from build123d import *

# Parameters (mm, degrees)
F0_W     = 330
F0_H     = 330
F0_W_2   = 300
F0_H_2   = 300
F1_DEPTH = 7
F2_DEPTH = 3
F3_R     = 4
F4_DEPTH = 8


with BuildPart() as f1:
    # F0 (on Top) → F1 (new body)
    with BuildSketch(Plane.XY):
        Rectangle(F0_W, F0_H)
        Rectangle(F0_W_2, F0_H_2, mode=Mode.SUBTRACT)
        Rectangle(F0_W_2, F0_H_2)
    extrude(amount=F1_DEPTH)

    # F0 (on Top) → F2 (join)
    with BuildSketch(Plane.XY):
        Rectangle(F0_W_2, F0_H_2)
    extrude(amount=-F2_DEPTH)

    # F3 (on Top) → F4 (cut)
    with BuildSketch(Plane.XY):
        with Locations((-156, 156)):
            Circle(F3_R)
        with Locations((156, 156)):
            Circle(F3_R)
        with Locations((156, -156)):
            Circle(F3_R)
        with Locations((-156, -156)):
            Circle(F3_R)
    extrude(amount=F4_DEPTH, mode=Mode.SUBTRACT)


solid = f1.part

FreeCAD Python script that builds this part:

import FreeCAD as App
import Part
import Sketcher

V = App.Vector
Q = App.Units.Quantity

doc = App.newDocument("Part")
body = doc.addObject("PartDesign::Body", "Body")

sketch1 = doc.addObject("Sketcher::SketchObject", "Sketch")
body.addObject(sketch1)
sketch1.AttachmentSupport = (doc.XY_Plane, [""])
sketch1.MapMode = "FlatFace"
sketch1.addGeometry([
    Part.LineSegment(V(-165, 165, 0), V(-165, -165, 0)),
    Part.LineSegment(V(-165, -165, 0), V(165, -165, 0)),
    Part.LineSegment(V(165, -165, 0), V(165, 165, 0)),
    Part.LineSegment(V(165, 165, 0), V(-165, 165, 0)),
], False)
sketch1.addConstraint([
    Sketcher.Constraint("Coincident", 0, 2, 1, 1),
    Sketcher.Constraint("Coincident", 1, 2, 2, 1),
    Sketcher.Constraint("Coincident", 2, 2, 3, 1),
    Sketcher.Constraint("Coincident", 3, 2, 0, 1),
    Sketcher.Constraint("Vertical", 0),
    Sketcher.Constraint("Horizontal", 1),
    Sketcher.Constraint("Vertical", 2),
    Sketcher.Constraint("Horizontal", 3),
    Sketcher.Constraint("Symmetric", 0, 2, 2, 2, -1, 1),
    Sketcher.Constraint("Equal", 3, 0),
    Sketcher.Constraint("DistanceX", 1, 1, 1, 2, Q("330 mm")),
])
pad1 = doc.addObject("PartDesign::Pad", "Pad")
body.addObject(pad1)
pad1.Profile = sketch1
pad1.Length = 7

sketch2 = doc.addObject("Sketcher::SketchObject", "Sketch001")
body.addObject(sketch2)
sketch2.AttachmentSupport = (doc.XY_Plane, [""])
sketch2.MapMode = "FlatFace"
sketch2.addGeometry([
    Part.LineSegment(V(-150, 150, 0), V(-150, -150, 0)),
    Part.LineSegment(V(-150, -150, 0), V(150, -150, 0)),
    Part.LineSegment(V(150, -150, 0), V(150, 150, 0)),
    Part.LineSegment(V(150, 150, 0), V(-150, 150, 0)),
], False)
sketch2.addConstraint([
    Sketcher.Constraint("Coincident", 0, 2, 1, 1),
    Sketcher.Constraint("Coincident", 1, 2, 2, 1),
    Sketcher.Constraint("Coincident", 2, 2, 3, 1),
    Sketcher.Constraint("Coincident", 3, 2, 0, 1),
    Sketcher.Constraint("Vertical", 0),
    Sketcher.Constraint("Horizontal", 1),
    Sketcher.Constraint("Vertical", 2),
    Sketcher.Constraint("Horizontal", 3),
    Sketcher.Constraint("Symmetric", 0, 2, 2, 2, -1, 1),
    Sketcher.Constraint("Equal", 3, 0),
    Sketcher.Constraint("DistanceX", 1, 1, 1, 2, Q("300 mm")),
])
pad2 = doc.addObject("PartDesign::Pad", "Pad001")
body.addObject(pad2)
pad2.Profile = sketch2
pad2.Length = 3
pad2.Reversed = True

sketch3 = doc.addObject("Sketcher::SketchObject", "Sketch002")
body.addObject(sketch3)
sketch3.AttachmentSupport = (doc.XY_Plane, [""])
sketch3.MapMode = "FlatFace"
sketch3.addGeometry([
    Part.Circle(V(-156, 156, 0), V(0, 0, 1), 4),
    Part.Circle(V(156, 156, 0), V(0, 0, 1), 4),
    Part.Circle(V(156, -156, 0), V(0, 0, 1), 4),
    Part.Circle(V(-156, -156, 0), V(0, 0, 1), 4),
], False)
sketch3.addConstraint([
    Sketcher.Constraint("Equal", 0, 1),
    Sketcher.Constraint("Equal", 1, 2),
    Sketcher.Constraint("Equal", 2, 3),
    Sketcher.Constraint("Symmetric", 0, 3, 2, 3, -1, 1),
    Sketcher.Constraint("Symmetric", 1, 3, 3, 3, -1, 1),
    Sketcher.Constraint("Symmetric", 0, 3, 1, 3, -2),
    Sketcher.Constraint("Diameter", 0, Q("8 mm")),
    Sketcher.Constraint("DistanceX", 0, 3, -1, 1, Q("156 mm")),
    Sketcher.Constraint("DistanceY", -1, 1, 0, 3, Q("156 mm")),
])
pocket1 = doc.addObject("PartDesign::Pocket", "Pocket")
body.addObject(pocket1)
pocket1.Profile = sketch3
pocket1.Length = 8
pocket1.Reversed = True

doc.recompute()
